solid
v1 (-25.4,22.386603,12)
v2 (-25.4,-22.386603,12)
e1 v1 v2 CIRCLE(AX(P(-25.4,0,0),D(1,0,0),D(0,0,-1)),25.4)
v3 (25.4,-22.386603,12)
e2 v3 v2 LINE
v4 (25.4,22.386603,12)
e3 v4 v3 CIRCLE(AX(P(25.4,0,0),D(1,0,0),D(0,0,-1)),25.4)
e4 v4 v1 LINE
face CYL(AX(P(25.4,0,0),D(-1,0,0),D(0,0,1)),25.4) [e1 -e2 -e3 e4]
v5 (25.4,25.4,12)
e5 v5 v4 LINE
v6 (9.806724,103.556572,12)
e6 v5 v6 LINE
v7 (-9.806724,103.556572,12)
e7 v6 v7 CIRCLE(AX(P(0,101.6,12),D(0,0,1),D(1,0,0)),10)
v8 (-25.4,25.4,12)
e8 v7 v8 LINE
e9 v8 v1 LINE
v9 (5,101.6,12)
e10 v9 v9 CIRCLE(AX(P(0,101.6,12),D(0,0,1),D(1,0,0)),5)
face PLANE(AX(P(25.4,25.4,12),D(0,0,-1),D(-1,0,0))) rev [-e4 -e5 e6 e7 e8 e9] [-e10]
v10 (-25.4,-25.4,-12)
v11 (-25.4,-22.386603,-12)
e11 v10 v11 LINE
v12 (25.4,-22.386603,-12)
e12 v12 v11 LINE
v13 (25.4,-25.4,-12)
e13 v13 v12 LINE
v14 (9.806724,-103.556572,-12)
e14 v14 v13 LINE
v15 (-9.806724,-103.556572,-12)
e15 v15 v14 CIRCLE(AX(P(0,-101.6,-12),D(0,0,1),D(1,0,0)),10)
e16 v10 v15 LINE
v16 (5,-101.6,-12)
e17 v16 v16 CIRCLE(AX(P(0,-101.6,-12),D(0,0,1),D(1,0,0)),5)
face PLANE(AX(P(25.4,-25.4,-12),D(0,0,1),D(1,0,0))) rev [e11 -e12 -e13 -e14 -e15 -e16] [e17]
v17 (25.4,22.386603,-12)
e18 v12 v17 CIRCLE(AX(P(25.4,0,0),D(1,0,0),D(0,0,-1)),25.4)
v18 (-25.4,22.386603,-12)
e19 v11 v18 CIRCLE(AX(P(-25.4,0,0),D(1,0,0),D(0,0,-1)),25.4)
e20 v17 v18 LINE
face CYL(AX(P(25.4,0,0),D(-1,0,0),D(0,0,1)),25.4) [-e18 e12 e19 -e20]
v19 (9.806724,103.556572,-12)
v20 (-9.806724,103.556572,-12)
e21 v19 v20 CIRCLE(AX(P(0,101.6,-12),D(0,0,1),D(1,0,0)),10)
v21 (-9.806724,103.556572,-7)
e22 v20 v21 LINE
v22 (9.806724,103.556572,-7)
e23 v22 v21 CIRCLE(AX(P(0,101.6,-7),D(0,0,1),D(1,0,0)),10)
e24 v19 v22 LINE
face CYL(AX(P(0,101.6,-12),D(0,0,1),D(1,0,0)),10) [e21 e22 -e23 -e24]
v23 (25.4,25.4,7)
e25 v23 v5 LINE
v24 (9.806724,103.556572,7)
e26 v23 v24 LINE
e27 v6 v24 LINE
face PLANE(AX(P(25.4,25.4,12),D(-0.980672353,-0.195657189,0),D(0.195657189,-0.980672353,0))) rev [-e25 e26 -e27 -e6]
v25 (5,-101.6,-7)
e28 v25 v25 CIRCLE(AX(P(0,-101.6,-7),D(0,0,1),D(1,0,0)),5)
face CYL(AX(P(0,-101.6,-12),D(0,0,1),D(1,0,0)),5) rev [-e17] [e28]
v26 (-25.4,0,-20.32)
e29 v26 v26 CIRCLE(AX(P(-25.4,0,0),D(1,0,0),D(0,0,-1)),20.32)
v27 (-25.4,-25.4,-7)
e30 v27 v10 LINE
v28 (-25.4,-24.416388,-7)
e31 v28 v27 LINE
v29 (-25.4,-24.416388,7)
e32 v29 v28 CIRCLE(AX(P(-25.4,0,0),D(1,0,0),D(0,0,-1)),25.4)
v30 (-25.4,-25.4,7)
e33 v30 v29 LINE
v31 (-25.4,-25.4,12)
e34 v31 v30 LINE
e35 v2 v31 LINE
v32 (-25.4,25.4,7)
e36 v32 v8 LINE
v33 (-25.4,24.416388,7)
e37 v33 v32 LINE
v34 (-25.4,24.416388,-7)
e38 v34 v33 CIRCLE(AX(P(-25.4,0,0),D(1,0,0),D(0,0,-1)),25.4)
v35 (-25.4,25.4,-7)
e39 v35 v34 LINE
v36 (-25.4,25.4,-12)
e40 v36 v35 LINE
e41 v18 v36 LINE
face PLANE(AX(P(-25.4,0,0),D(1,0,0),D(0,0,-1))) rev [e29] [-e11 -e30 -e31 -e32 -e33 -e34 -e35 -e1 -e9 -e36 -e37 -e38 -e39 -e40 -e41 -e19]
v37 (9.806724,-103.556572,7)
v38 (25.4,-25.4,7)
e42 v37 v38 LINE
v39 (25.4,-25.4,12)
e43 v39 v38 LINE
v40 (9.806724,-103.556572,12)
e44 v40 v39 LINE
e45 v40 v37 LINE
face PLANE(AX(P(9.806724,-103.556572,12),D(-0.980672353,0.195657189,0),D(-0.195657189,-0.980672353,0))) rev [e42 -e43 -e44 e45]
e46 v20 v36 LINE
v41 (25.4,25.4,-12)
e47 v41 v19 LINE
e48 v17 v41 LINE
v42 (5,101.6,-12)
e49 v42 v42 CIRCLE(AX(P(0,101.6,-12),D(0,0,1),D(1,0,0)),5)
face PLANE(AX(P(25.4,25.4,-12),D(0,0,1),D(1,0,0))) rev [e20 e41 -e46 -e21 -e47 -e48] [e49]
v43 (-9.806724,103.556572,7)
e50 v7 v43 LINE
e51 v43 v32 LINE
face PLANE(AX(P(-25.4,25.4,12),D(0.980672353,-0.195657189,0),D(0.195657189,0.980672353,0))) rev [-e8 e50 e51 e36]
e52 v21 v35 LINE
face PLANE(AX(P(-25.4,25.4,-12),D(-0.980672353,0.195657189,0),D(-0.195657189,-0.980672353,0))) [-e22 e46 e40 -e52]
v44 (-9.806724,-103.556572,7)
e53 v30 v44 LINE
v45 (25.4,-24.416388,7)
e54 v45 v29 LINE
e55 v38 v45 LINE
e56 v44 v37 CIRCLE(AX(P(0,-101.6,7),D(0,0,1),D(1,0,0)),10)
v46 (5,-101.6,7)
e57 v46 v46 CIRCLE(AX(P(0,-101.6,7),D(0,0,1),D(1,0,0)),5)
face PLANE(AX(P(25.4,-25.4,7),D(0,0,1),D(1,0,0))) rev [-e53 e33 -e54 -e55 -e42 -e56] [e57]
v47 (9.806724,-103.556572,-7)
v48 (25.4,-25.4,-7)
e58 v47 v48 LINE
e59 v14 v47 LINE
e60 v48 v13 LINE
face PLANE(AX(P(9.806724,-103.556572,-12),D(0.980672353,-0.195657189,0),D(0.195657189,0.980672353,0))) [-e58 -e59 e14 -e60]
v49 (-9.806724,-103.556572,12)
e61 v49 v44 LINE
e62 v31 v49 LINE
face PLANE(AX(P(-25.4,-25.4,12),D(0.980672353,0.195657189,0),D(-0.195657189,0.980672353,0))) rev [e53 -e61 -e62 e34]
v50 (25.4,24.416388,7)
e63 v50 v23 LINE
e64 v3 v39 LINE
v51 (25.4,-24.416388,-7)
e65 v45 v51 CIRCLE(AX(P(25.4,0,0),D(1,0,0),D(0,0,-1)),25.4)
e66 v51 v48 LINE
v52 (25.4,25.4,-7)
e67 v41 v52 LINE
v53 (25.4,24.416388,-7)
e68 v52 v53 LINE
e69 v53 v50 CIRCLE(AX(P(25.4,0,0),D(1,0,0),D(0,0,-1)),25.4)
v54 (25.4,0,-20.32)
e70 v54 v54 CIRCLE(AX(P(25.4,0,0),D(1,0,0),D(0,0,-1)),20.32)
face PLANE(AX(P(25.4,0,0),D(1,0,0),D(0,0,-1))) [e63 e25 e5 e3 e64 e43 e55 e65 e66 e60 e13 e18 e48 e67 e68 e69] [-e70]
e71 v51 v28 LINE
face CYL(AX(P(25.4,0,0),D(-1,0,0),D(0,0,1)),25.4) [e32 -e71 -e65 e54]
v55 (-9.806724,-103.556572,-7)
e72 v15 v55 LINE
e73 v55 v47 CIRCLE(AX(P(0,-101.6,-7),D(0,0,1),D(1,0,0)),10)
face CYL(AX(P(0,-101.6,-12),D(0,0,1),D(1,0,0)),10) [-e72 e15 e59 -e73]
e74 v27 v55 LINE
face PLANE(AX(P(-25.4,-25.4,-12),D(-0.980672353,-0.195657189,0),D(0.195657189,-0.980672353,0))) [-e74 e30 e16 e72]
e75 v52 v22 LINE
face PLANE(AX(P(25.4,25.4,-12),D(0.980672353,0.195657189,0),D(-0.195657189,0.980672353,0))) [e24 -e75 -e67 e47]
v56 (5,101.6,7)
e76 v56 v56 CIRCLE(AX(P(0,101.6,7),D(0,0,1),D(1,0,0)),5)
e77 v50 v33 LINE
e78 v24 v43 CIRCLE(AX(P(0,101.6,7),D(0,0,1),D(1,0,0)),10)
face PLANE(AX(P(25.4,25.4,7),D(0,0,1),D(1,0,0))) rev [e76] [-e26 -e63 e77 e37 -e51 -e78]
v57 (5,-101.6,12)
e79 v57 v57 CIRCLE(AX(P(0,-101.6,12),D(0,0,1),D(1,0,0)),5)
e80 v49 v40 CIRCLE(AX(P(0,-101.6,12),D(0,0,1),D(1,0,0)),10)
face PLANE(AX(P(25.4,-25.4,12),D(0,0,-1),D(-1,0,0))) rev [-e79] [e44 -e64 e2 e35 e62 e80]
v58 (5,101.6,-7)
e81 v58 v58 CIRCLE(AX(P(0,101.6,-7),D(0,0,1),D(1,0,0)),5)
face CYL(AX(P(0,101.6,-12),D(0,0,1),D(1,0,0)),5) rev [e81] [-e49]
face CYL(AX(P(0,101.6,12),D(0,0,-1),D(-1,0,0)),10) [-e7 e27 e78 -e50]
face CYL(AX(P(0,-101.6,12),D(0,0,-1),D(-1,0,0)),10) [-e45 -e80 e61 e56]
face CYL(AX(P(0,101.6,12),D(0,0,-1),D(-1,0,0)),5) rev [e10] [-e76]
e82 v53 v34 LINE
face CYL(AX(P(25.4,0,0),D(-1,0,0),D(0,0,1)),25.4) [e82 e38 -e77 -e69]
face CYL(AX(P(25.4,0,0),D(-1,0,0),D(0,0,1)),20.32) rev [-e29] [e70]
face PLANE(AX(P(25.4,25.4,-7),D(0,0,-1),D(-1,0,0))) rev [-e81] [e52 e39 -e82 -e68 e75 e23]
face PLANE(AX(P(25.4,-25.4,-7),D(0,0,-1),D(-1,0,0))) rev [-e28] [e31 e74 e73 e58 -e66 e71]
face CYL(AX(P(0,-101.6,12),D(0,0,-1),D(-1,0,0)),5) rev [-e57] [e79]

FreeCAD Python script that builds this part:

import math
import FreeCAD as App
import Part
import Sketcher

doc = App.newDocument("Part")
body = doc.addObject("PartDesign::Body", "Body")

sketch1 = doc.addObject("Sketcher::SketchObject", "Sketch")
body.addObject(sketch1)
sketch1.AttachmentSupport = (doc.YZ_Plane, [""])
sketch1.MapMode = "FlatFace"
sketch1.addGeometry(Part.Circle(App.Vector(0, 0, 0), App.Vector(0, 0, 1), 25), False)
sketch1.addGeometry(Part.Circle(App.Vector(0, 0, 0), App.Vector(0, 0, 1), 20), False)
sketch1.addConstraint(Sketcher.Constraint("Coincident", 0, 3, -1, 1))
sketch1.addConstraint(Sketcher.Constraint("Coincident", 1, 3, -1, 1))
sketch1.addConstraint(Sketcher.Constraint("Diameter", 0, 50.8))
sketch1.addConstraint(Sketcher.Constraint("Diameter", 1, 40.64))
pad1 = doc.addObject("PartDesign::Pad", "Pad")
body.addObject(pad1)
pad1.Profile = sketch1
pad1.Length = 50.8
pad1.Midplane = True
body2 = doc.addObject("PartDesign::Body", "Body001")

sketch2 = doc.addObject("Sketcher::SketchObject", "Sketch001")
body2.addObject(sketch2)
sketch2.AttachmentSupport = (doc.getObject("XY_Plane001"), [""])
sketch2.MapMode = "FlatFace"
sketch2.AttachmentOffset = App.Placement(App.Vector(0, 0, 7), App.Rotation())
sketch2.addGeometry(Part.LineSegment(App.Vector(-10, 104, 0), App.Vector(-25, 25, 0)), False)
sketch2.addGeometry(Part.LineSegment(App.Vector(-25, 25, 0), App.Vector(25, 25, 0)), False)
sketch2.addGeometry(Part.LineSegment(App.Vector(25, 25, 0), App.Vector(10, 104, 0)), False)
sketch2.addGeometry(Part.ArcOfCircle(Part.Circle(App.Vector(0, 102, 0), App.Vector(0, 0, 1), 10), math.radians(11), math.radians(169)), False)
sketch2.addGeometry(Part.Circle(App.Vector(0, 102, 0), App.Vector(0, 0, 1), 5), False)
sketch2.addConstraint(Sketcher.Constraint("Coincident", 0, 2, 1, 1))
sketch2.addConstraint(Sketcher.Constraint("Coincident", 1, 2, 2, 1))
sketch2.addConstraint(Sketcher.Constraint("Tangent", 2, 2, 3, 1))
sketch2.addConstraint(Sketcher.Constraint("Tangent", 3, 2, 0, 1))
sketch2.addConstraint(Sketcher.Constraint("Horizontal", 1))
sketch2.addConstraint(Sketcher.Constraint("Coincident", 4, 3, 3, 3))
sketch2.addConstraint(Sketcher.Constraint("Symmetric", 2, 2, 3, 2, -2))
sketch2.addConstraint(Sketcher.Constraint("Diameter", 4, 10.0))
sketch2.addConstraint(Sketcher.Constraint("Radius", 3, 10.0))
sketch2.addConstraint(Sketcher.Constraint("DistanceX", 1, 1, 1, 2, 50.8))
sketch2.addConstraint(Sketcher.Constraint("DistanceY", -1, 1, 3, 3, 101.6))
sketch2.addConstraint(Sketcher.Constraint("DistanceY", -1, 1, 0, 2, 25.4))
pad2 = doc.addObject("PartDesign::Pad", "Pad001")
body2.addObject(pad2)
pad2.Profile = sketch2
pad2.Length = 5
body3 = doc.addObject("PartDesign::Body", "Body002")

sketch3 = doc.addObject("Sketcher::SketchObject", "Sketch002")
body3.addObject(sketch3)
sketch3.AttachmentSupport = (doc.getObject("XY_Plane002"), [""])
sketch3.MapMode = "FlatFace"
sketch3.AttachmentOffset = App.Placement(App.Vector(0, 0, 7), App.Rotation())
sketch3.addGeometry(Part.LineSegment(App.Vector(-25, -25, 0), App.Vector(-10, -104, 0)), False)
sketch3.addGeometry(Part.ArcOfCircle(Part.Circle(App.Vector(0, -102, 0), App.Vector(0, 0, 1), 10), math.radians(-169), math.radians(-11)), False)
sketch3.addGeometry(Part.LineSegment(App.Vector(10, -104, 0), App.Vector(25, -25, 0)), False)
sketch3.addGeometry(Part.LineSegment(App.Vector(25, -25, 0), App.Vector(-25, -25, 0)), False)
sketch3.addGeometry(Part.Circle(App.Vector(0, -102, 0), App.Vector(0, 0, 1), 5), False)
sketch3.addConstraint(Sketcher.Constraint("Tangent", 0, 2, 1, 1))
sketch3.addConstraint(Sketcher.Constraint("Tangent", 1, 2, 2, 1))
sketch3.addConstraint(Sketcher.Constraint("Coincident", 2, 2, 3, 1))
sketch3.addConstraint(Sketcher.Constraint("Coincident", 3, 2, 0, 1))
sketch3.addConstraint(Sketcher.Constraint("Horizontal", 3))
sketch3.addConstraint(Sketcher.Constraint("Coincident", 4, 3, 1, 3))
sketch3.addConstraint(Sketcher.Constraint("Symmetric", 0, 2, 1, 2, -2))
sketch3.addConstraint(Sketcher.Constraint("Diameter", 4, 10.0))
sketch3.addConstraint(Sketcher.Constraint("Radius", 1, 10.0))
sketch3.addConstraint(Sketcher.Constraint("DistanceX", 3, 2, 3, 1, 50.8))
sketch3.addConstraint(Sketcher.Constraint("DistanceY", 1, 3, -1, 1, 101.6))
sketch3.addConstraint(Sketcher.Constraint("DistanceY", 2, 2, -1, 1, 25.4))
pad3 = doc.addObject("PartDesign::Pad", "Pad002")
body3.addObject(pad3)
pad3.Profile = sketch3
pad3.Length = 5
body4 = doc.addObject("PartDesign::Body", "Body003")

sketch4 = doc.addObject("Sketcher::SketchObject", "Sketch003")
body4.addObject(sketch4)
sketch4.AttachmentSupport = (doc.getObject("XY_Plane003"), [""])
sketch4.MapMode = "FlatFace"
sketch4.AttachmentOffset = App.Placement(App.Vector(0, 0, -7), App.Rotation())
sketch4.addGeometry(Part.LineSegment(App.Vector(-10, 104, 0), App.Vector(-25, 25, 0)), False)
sketch4.addGeometry(Part.LineSegment(App.Vector(-25, 25, 0), App.Vector(25, 25, 0)), False)
sketch4.addGeometry(Part.LineSegment(App.Vector(25, 25, 0), App.Vector(10, 104, 0)), False)
sketch4.addGeometry(Part.ArcOfCircle(Part.Circle(App.Vector(0, 102, 0), App.Vector(0, 0, 1), 10), math.radians(11), math.radians(169)), False)
sketch4.addGeometry(Part.Circle(App.Vector(0, 102, 0), App.Vector(0, 0, 1), 5), False)
sketch4.addConstraint(Sketcher.Constraint("Coincident", 0, 2, 1, 1))
sketch4.addConstraint(Sketcher.Constraint("Coincident", 1, 2, 2, 1))
sketch4.addConstraint(Sketcher.Constraint("Tangent", 2, 2, 3, 1))
sketch4.addConstraint(Sketcher.Constraint("Tangent", 3, 2, 0, 1))
sketch4.addConstraint(Sketcher.Constraint("Horizontal", 1))
sketch4.addConstraint(Sketcher.Constraint("Coincident", 4, 3, 3, 3))
sketch4.addConstraint(Sketcher.Constraint("Symmetric", 2, 2, 3, 2, -2))
sketch4.addConstraint(Sketcher.Constraint("Diameter", 4, 10.0))
sketch4.addConstraint(Sketcher.Constraint("Radius", 3, 10.0))
sketch4.addConstraint(Sketcher.Constraint("DistanceX", 1, 1, 1, 2, 50.8))
sketch4.addConstraint(Sketcher.Constraint("DistanceY", -1, 1, 3, 3, 101.6))
sketch4.addConstraint(Sketcher.Constraint("DistanceY", -1, 1, 0, 2, 25.4))
pad4 = doc.addObject("PartDesign::Pad", "Pad003")
body4.addObject(pad4)
pad4.Profile = sketch4
pad4.Length = 5
pad4.Reversed = True
body5 = doc.addObject("PartDesign::Body", "Body004")

sketch5 = doc.addObject("Sketcher::SketchObject", "Sketch004")
body5.addObject(sketch5)
sketch5.AttachmentSupport = (doc.getObject("XY_Plane004"), [""])
sketch5.MapMode = "FlatFace"
sketch5.AttachmentOffset = App.Placement(App.Vector(0, 0, -7), App.Rotation())
sketch5.addGeometry(Part.LineSegment(App.Vector(-25, -25, 0), App.Vector(-10, -104, 0)), False)
sketch5.addGeometry(Part.ArcOfCircle(Part.Circle(App.Vector(0, -102, 0), App.Vector(0, 0, 1), 10), math.radians(-169), math.radians(-11)), False)
sketch5.addGeometry(Part.LineSegment(App.Vector(10, -104, 0), App.Vector(25, -25, 0)), False)
sketch5.addGeometry(Part.LineSegment(App.Vector(25, -25, 0), App.Vector(-25, -25, 0)), False)
sketch5.addGeometry(Part.Circle(App.Vector(0, -102, 0), App.Vector(0, 0, 1), 5), False)
sketch5.addConstraint(Sketcher.Constraint("Tangent", 0, 2, 1, 1))
sketch5.addConstraint(Sketcher.Constraint("Tangent", 1, 2, 2, 1))
sketch5.addConstraint(Sketcher.Constraint("Coincident", 2, 2, 3, 1))
sketch5.addConstraint(Sketcher.Constraint("Coincident", 3, 2, 0, 1))
sketch5.addConstraint(Sketcher.Constraint("Horizontal", 3))
sketch5.addConstraint(Sketcher.Constraint("Coincident", 4, 3, 1, 3))
sketch5.addConstraint(Sketcher.Constraint("Symmetric", 0, 2, 1, 2, -2))
sketch5.addConstraint(Sketcher.Constraint("Diameter", 4, 10.0))
sketch5.addConstraint(Sketcher.Constraint("Radius", 1, 10.0))
sketch5.addConstraint(Sketcher.Constraint("DistanceX", 3, 2, 3, 1, 50.8))
sketch5.addConstraint(Sketcher.Constraint("DistanceY", 1, 3, -1, 1, 101.6))
sketch5.addConstraint(Sketcher.Constraint("DistanceY", 2, 2, -1, 1, 25.4))
pad5 = doc.addObject("PartDesign::Pad", "Pad004")
body5.addObject(pad5)
pad5.Profile = sketch5
pad5.Length = 5
pad5.Reversed = True
body.AllowCompound = True
doc.recompute()

boolean = doc.addObject("PartDesign::Boolean", "Boolean")
body.addObject(boolean)
boolean.Type = "Fuse"
boolean.addObjects([body2])
doc.recompute()

boolean2 = doc.addObject("PartDesign::Boolean", "Boolean001")
body.addObject(boolean2)
boolean2.Type = "Fuse"
boolean2.addObjects([body3])
doc.recompute()

boolean3 = doc.addObject("PartDesign::Boolean", "Boolean002")
body.addObject(boolean3)
boolean3.Type = "Fuse"
boolean3.addObjects([body4])
doc.recompute()

boolean4 = doc.addObject("PartDesign::Boolean", "Boolean003")
body.addObject(boolean4)
boolean4.Type = "Fuse"
boolean4.addObjects([body5])

sketch6 = doc.addObject("Sketcher::SketchObject", "Sketch005")
body.addObject(sketch6)
sketch6.AttachmentSupport = (doc.YZ_Plane, [""])
sketch6.MapMode = "FlatFace"
sketch6.addGeometry(Part.LineSegment(App.Vector(-25.4, -7, 0), App.Vector(-25.4, -12, 0)), False)
sketch6.addGeometry(Part.LineSegment(App.Vector(-25.4, -12, 0), App.Vector(-22.4, -12, 0)), False)
sketch6.addGeometry(Part.ArcOfCircle(Part.Circle(App.Vector(0, 0, 0), App.Vector(0, 0, 1), 25.4), math.radians(-164), math.radians(-151.81)), False)
sketch6.addGeometry(Part.LineSegment(App.Vector(-24.4, -7, 0), App.Vector(-25.4, -7, 0)), False)
sketch6.addGeometry(Part.LineSegment(App.Vector(-25.4, 12, 0), App.Vector(-25.4, 7, 0)), False)
sketch6.addGeometry(Part.LineSegment(App.Vector(-25.4, 7, 0), App.Vector(-24.4, 7, 0)), False)
sketch6.addGeometry(Part.ArcOfCircle(Part.Circle(App.Vector(0, 0, 0), App.Vector(0, 0, 1), 25.4), math.radians(151.81), math.radians(164)), False)
sketch6.addGeometry(Part.LineSegment(App.Vector(-22.4, 12, 0), App.Vector(-25.4, 12, 0)), False)
sketch6.addGeometry(Part.LineSegment(App.Vector(25.4, -12, 0), App.Vector(25.4, -7, 0)), False)
sketch6.addGeometry(Part.LineSegment(App.Vector(25.4, -7, 0), App.Vector(24.4, -7, 0)), False)
sketch6.addGeometry(Part.ArcOfCircle(Part.Circle(App.Vector(0, 0, 0), App.Vector(0, 0, 1), 25.4), math.radians(-28.19), math.radians(-16)), False)
sketch6.addGeometry(Part.LineSegment(App.Vector(22.4, -12, 0), App.Vector(25.4, -12, 0)), False)
sketch6.addGeometry(Part.LineSegment(App.Vector(25.4, 7, 0), App.Vector(25.4, 12, 0)), False)
sketch6.addGeometry(Part.LineSegment(App.Vector(25.4, 12, 0), App.Vector(22.4, 12, 0)), False)
sketch6.addGeometry(Part.ArcOfCircle(Part.Circle(App.Vector(0, 0, 0), App.Vector(0, 0, 1), 25.4), math.radians(16), math.radians(28.19)), False)
sketch6.addGeometry(Part.LineSegment(App.Vector(24.4, 7, 0), App.Vector(25.4, 7, 0)), False)
sketch6.addConstraint(Sketcher.Constraint("Coincident", 0, 2, 1, 1))
sketch6.addConstraint(Sketcher.Constraint("Coincident", 1, 2, 2, 2))
sketch6.addConstraint(Sketcher.Constraint("Coincident", 2, 1, 3, 1))
sketch6.addConstraint(Sketcher.Constraint("Coincident", 3, 2, 0, 1))
sketch6.addConstraint(Sketcher.Constraint("Coincident", 4, 2, 5, 1))
sketch6.addConstraint(Sketcher.Constraint("Coincident", 5, 2, 6, 2))
sketch6.addConstraint(Sketcher.Constraint("Coincident", 6, 1, 7, 1))
sketch6.addConstraint(Sketcher.Constraint("Coincident", 7, 2, 4, 1))
sketch6.addConstraint(Sketcher.Constraint("Coincident", 8, 2, 9, 1))
sketch6.addConstraint(Sketcher.Constraint("Coincident", 9, 2, 10, 2))
sketch6.addConstraint(Sketcher.Constraint("Coincident", 10, 1, 11, 1))
sketch6.addConstraint(Sketcher.Constraint("Coincident", 11, 2, 8, 1))
sketch6.addConstraint(Sketcher.Constraint("Coincident", 12, 2, 13, 1))
sketch6.addConstraint(Sketcher.Constraint("Coincident", 13, 2, 14, 2))
sketch6.addConstraint(Sketcher.Constraint("Coincident", 14, 1, 15, 1))
sketch6.addConstraint(Sketcher.Constraint("Coincident", 15, 2, 12, 1))
sketch6.addConstraint(Sketcher.Constraint("Vertical", 0))
sketch6.addConstraint(Sketcher.Constraint("Horizontal", 1))
sketch6.addConstraint(Sketcher.Constraint("Horizontal", 3))
sketch6.addConstraint(Sketcher.Constraint("Vertical", 4))
sketch6.addConstraint(Sketcher.Constraint("Horizontal", 5))
sketch6.addConstraint(Sketcher.Constraint("Horizontal", 7))
sketch6.addConstraint(Sketcher.Constraint("Vertical", 8))
sketch6.addConstraint(Sketcher.Constraint("Horizontal", 9))
sketch6.addConstraint(Sketcher.Constraint("Horizontal", 11))
sketch6.addConstraint(Sketcher.Constraint("Vertical", 12))
sketch6.addConstraint(Sketcher.Constraint("Horizontal", 13))
sketch6.addConstraint(Sketcher.Constraint("Horizontal", 15))
sketch6.addConstraint(Sketcher.Constraint("Coincident", 2, 3, -1, 1))
sketch6.addConstraint(Sketcher.Constraint("Coincident", 6, 3, -1, 1))
sketch6.addConstraint(Sketcher.Constraint("Coincident", 10, 3, -1, 1))
sketch6.addConstraint(Sketcher.Constraint("Coincident", 14, 3, -1, 1))
sketch6.addConstraint(Sketcher.Constraint("Equal", 2, 6))
sketch6.addConstraint(Sketcher.Constraint("Equal", 6, 10))
sketch6.addConstraint(Sketcher.Constraint("Equal", 10, 14))
sketch6.addConstraint(Sketcher.Constraint("Symmetric", 4, 2, 8, 2, -1, 1))
sketch6.addConstraint(Sketcher.Constraint("Symmetric", 0, 2, 12, 2, -1, 1))
sketch6.addConstraint(Sketcher.Constraint("Symmetric", 3, 2, 8, 2, -2))
sketch6.addConstraint(Sketcher.Constraint("Horizontal", 1, 2, 10, 1))
sketch6.addConstraint(Sketcher.Constraint("Horizontal", 7, 2, 12, 2))
sketch6.addConstraint(Sketcher.Constraint("Horizontal", 5, 2, 14, 1))
sketch6.addConstraint(Sketcher.Constraint("Radius", 2, 25.4))
sketch6.addConstraint(Sketcher.Constraint("DistanceY", 0, 2, 0, 1, 5.0))
sketch6.addConstraint(Sketcher.Constraint("DistanceY", 0, 2, -1, 1, 12.0))
sketch6.addConstraint(Sketcher.Constraint("DistanceX", 0, 2, -1, 1, 25.4))
pad6 = doc.addObject("PartDesign::Pad", "Pad005")
body.addObject(pad6)
pad6.Profile = sketch6
pad6.Length = 50.8
pad6.Midplane = True

doc.recompute()
